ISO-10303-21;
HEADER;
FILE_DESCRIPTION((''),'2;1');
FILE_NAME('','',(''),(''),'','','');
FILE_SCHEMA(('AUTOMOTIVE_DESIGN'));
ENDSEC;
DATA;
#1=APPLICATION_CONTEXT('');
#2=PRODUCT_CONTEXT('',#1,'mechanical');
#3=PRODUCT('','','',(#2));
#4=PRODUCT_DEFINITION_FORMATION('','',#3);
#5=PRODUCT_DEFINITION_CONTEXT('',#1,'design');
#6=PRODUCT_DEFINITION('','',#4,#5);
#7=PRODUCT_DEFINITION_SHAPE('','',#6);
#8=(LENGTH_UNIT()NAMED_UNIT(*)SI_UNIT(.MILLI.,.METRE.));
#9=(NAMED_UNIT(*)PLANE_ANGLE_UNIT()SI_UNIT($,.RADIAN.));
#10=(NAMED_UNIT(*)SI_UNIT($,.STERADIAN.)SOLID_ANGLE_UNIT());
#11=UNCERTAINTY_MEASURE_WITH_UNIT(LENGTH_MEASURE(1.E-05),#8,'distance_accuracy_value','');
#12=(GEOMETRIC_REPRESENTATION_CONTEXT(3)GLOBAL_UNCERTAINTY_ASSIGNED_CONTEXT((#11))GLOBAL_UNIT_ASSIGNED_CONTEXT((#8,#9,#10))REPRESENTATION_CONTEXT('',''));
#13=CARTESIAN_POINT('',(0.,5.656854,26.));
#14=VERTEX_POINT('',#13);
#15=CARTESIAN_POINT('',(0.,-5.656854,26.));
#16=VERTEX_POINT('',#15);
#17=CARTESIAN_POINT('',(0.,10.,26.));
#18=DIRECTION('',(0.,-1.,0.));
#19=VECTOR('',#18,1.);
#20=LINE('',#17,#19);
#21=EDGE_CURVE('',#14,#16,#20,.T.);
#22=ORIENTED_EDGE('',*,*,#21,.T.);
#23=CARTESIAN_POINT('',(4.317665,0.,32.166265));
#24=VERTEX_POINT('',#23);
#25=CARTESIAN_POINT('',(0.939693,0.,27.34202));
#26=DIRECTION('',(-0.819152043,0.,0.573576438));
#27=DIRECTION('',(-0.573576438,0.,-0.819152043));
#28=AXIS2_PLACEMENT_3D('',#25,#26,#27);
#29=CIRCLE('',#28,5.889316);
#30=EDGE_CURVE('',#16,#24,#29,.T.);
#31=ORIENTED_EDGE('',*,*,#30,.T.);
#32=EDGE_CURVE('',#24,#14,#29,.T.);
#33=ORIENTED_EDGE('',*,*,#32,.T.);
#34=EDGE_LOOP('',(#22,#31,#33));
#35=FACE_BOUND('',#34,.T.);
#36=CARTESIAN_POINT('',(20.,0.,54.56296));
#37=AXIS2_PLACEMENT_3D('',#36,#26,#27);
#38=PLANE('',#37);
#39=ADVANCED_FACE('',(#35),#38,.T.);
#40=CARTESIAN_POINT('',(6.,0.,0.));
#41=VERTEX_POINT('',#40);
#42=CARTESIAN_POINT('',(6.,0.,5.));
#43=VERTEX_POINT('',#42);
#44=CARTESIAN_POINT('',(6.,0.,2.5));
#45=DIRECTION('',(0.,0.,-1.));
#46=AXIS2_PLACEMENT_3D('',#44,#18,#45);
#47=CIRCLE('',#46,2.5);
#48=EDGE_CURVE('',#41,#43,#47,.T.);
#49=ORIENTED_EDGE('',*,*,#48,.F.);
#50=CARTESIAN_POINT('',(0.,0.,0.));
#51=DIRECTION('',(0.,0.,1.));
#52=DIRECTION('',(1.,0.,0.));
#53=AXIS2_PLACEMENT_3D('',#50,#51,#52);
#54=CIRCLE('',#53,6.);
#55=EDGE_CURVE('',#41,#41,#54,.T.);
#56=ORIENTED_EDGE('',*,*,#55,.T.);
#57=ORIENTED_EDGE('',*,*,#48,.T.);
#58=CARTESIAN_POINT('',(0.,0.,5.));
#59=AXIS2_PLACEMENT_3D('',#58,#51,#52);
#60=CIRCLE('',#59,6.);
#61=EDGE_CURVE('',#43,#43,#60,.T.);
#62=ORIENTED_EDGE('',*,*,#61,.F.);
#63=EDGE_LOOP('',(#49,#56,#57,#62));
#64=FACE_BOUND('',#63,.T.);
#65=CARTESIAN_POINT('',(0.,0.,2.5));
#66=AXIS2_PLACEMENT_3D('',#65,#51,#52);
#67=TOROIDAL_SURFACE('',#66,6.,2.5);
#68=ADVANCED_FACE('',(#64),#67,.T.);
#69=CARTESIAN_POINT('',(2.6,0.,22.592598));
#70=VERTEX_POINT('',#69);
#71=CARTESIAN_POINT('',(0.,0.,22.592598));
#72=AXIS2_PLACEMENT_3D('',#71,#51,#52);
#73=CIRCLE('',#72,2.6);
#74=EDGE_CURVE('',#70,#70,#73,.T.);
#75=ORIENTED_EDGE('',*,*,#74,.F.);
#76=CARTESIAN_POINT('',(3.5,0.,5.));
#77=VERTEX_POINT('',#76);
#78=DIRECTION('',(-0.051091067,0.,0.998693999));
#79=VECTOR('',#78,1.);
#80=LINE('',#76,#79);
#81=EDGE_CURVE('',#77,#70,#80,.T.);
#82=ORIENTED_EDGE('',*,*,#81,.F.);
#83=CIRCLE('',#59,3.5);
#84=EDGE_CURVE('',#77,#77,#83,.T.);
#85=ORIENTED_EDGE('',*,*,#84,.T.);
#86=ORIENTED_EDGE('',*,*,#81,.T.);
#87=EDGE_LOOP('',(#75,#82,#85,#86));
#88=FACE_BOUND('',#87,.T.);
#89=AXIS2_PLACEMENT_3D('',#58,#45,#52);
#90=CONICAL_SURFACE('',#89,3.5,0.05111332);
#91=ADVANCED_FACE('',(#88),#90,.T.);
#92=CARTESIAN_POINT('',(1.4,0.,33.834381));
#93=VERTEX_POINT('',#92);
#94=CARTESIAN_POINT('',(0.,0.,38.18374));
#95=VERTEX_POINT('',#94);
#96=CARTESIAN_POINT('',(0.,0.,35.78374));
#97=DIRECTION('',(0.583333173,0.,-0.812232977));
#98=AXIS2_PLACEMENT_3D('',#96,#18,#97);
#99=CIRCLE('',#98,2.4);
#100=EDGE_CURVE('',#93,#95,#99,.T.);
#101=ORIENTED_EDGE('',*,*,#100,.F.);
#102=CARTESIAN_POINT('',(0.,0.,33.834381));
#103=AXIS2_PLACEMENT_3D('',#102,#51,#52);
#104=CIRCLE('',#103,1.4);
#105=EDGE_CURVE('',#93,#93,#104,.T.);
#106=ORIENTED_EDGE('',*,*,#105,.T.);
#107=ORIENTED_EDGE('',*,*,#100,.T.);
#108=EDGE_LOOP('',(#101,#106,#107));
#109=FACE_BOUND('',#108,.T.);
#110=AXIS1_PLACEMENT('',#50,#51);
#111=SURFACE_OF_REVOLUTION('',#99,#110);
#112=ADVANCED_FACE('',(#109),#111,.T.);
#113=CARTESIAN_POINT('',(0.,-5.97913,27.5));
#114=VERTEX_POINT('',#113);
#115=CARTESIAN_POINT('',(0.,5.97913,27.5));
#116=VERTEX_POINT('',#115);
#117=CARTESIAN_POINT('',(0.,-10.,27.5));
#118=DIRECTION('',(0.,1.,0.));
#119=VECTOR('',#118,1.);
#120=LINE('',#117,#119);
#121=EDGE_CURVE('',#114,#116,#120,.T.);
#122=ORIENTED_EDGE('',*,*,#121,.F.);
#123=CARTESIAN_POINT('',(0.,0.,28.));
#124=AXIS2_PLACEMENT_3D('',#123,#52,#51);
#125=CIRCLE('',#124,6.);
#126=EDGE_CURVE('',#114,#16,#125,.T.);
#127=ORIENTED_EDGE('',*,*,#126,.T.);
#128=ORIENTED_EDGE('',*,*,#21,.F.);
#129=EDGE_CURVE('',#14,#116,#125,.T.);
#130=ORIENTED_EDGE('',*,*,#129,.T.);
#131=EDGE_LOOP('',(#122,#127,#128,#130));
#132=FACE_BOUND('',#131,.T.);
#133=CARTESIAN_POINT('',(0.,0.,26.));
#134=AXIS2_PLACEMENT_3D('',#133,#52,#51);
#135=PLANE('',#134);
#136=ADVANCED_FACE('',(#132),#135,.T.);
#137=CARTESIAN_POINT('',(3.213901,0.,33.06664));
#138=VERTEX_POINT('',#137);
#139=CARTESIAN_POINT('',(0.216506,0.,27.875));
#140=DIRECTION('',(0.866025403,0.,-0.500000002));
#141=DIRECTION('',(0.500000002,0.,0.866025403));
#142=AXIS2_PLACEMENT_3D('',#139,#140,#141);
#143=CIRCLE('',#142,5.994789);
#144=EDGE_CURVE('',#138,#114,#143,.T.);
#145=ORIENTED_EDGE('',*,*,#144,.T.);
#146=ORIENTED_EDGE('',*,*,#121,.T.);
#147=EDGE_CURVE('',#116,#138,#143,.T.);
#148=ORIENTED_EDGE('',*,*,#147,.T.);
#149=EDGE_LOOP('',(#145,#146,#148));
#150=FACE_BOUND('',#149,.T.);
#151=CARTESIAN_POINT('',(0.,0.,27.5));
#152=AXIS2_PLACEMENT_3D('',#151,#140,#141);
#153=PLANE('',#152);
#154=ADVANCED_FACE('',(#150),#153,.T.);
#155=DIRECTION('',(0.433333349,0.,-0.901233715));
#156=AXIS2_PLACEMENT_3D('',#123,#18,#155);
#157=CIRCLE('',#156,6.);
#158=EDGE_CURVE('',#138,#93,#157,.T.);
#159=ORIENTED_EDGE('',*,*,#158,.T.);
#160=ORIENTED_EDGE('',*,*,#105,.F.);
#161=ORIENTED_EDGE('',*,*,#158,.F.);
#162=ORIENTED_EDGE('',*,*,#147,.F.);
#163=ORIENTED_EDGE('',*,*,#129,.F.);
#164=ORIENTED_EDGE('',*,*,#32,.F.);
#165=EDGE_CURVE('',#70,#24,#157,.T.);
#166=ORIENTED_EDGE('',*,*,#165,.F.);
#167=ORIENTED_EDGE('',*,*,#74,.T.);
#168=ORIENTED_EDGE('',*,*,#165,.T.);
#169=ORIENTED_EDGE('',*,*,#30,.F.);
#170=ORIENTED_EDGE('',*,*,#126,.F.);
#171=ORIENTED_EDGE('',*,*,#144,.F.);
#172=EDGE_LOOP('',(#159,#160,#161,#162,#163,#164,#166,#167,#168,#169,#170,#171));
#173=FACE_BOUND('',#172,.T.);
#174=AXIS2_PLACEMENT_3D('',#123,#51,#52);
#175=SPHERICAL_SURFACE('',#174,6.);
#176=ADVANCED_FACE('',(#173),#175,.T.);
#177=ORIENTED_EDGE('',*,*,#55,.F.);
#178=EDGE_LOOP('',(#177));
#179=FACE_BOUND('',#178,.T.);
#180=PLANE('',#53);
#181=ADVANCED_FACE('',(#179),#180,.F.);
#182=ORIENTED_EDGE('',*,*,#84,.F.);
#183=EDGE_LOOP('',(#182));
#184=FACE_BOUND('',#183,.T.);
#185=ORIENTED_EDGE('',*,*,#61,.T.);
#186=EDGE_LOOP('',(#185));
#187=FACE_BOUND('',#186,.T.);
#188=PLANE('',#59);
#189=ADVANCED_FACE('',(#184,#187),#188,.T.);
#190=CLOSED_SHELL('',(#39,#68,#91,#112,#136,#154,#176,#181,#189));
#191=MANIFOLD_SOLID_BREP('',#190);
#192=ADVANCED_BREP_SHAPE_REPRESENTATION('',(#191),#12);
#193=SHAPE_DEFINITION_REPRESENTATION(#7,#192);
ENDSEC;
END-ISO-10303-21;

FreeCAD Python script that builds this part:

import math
import FreeCAD as App
import Part
import Sketcher
Q = App.Units.Quantity

doc = App.newDocument("Part")
body = doc.addObject("PartDesign::Body", "Body")

# Sketch on XZ plane
sketch1 = body.newObject("Sketcher::SketchObject", "Sketch")
sketch1.AttachmentSupport = (doc.getObject("XZ_Plane"), [""])
sketch1.MapMode = "FlatFace"
sketch1.addGeometry([
    Part.LineSegment(App.Vector(0, 27.5, 0), App.Vector(0, 26, 0)),
    Part.LineSegment(App.Vector(0, 26, 0), App.Vector(20, 54.6, 0)),
    Part.LineSegment(App.Vector(20, 54.6, 0), App.Vector(20, 62.1, 0)),
    Part.LineSegment(App.Vector(20, 62.1, 0), App.Vector(0, 27.5, 0)),
], False)
sketch1.addConstraint([
    Sketcher.Constraint("Coincident", 0, 2, 1, 1),
    Sketcher.Constraint("Coincident", 1, 2, 2, 1),
    Sketcher.Constraint("Coincident", 2, 2, 3, 1),
    Sketcher.Constraint("Coincident", 3, 2, 0, 1),
    Sketcher.Constraint("Vertical", 0),
    Sketcher.Constraint("Vertical", 2),
    Sketcher.Constraint("PointOnObject", 0, 2, -2),
    Sketcher.Constraint("Angle", 1, Q("55 deg")),
    Sketcher.Constraint("Angle", 3, Q("-120 deg")),
    Sketcher.Constraint("Distance", 3, Q("40 mm")),
    Sketcher.Constraint("DistanceY", 0, 2, 0, 1, Q("1.5 mm")),
    Sketcher.Constraint("DistanceY", -1, 1, 0, 2, Q("26 mm")),
])
pad1 = body.newObject("PartDesign::Pad", "Pad")
pad1.Profile = sketch1
pad1.Length = 20
pad1.Midplane = True
body2 = doc.addObject("PartDesign::Body", "Body001")

# Sketch on XZ plane
sketch2 = body2.newObject("Sketcher::SketchObject", "Sketch001")
sketch2.AttachmentSupport = (doc.getObject("XZ_Plane001"), [""])
sketch2.MapMode = "FlatFace"
sketch2.addGeometry([
    Part.LineSegment(App.Vector(0, 0, 0), App.Vector(6, 0, 0)),  # 0
    Part.ArcOfCircle(Part.Circle(App.Vector(6, 2.5, 0), App.Vector(0, 0, 1), 2.5), math.radians(-90), math.radians(90)),  # 1
    Part.LineSegment(App.Vector(6, 5, 0), App.Vector(3.5, 5, 0)),  # 2
    Part.LineSegment(App.Vector(3.5, 5, 0), App.Vector(2.6, 22.6, 0)),  # 3
    Part.ArcOfCircle(Part.Circle(App.Vector(0, 28, 0), App.Vector(0, 0, 1), 6), math.radians(-64), math.radians(77)),  # 4
    Part.ArcOfCircle(Part.Circle(App.Vector(0, 35.8, 0), App.Vector(0, 0, 1), 2.4), math.radians(-54), math.radians(90)),  # 5
    Part.LineSegment(App.Vector(0, 38.2, 0), App.Vector(0, 0, 0)),  # 6
], False)
sketch2.addConstraint([
    Sketcher.Constraint("Tangent", 0, 2, 1, 1),
    Sketcher.Constraint("Tangent", 1, 2, 2, 1),
    Sketcher.Constraint("Coincident", 2, 2, 3, 1),
    Sketcher.Constraint("Coincident", 3, 2, 4, 1),
    Sketcher.Constraint("Coincident", 4, 2, 5, 1),
    Sketcher.Constraint("Coincident", 5, 2, 6, 1),
    Sketcher.Constraint("Coincident", 6, 2, 0, 1),
    Sketcher.Constraint("Horizontal", 0),
    Sketcher.Constraint("Horizontal", 2),
    Sketcher.Constraint("Vertical", 6),
    Sketcher.Constraint("Coincident", 6, 2, -1, 1),
    Sketcher.Constraint("PointOnObject", 4, 3, -2),
    Sketcher.Constraint("PointOnObject", 5, 3, -2),
    Sketcher.Constraint("Radius", 4, Q("6 mm")),
    Sketcher.Constraint("Radius", 1, Q("2.5 mm")),
    Sketcher.Constraint("Radius", 5, Q("2.4 mm")),
    Sketcher.Constraint("DistanceX", 0, 1, 0, 2, Q("6 mm")),
    Sketcher.Constraint("DistanceX", 2, 2, 2, 1, Q("2.5 mm")),
    Sketcher.Constraint("DistanceY", -1, 1, 4, 3, Q("28 mm")),
    Sketcher.Constraint("DistanceX", -1, 1, 3, 2, Q("2.6 mm")),
    Sketcher.Constraint("DistanceX", -1, 1, 4, 2, Q("1.4 mm")),
])
revolution = body2.newObject("PartDesign::Revolution", "Revolution")
revolution.Profile = sketch2
revolution.ReferenceAxis = (sketch2, ["V_Axis"])
revolution.Angle = 360
doc.recompute()

boolean = body2.newObject("PartDesign::Boolean", "Boolean")
boolean.Type = "Cut"
boolean.addObjects([body])

doc.recompute()
